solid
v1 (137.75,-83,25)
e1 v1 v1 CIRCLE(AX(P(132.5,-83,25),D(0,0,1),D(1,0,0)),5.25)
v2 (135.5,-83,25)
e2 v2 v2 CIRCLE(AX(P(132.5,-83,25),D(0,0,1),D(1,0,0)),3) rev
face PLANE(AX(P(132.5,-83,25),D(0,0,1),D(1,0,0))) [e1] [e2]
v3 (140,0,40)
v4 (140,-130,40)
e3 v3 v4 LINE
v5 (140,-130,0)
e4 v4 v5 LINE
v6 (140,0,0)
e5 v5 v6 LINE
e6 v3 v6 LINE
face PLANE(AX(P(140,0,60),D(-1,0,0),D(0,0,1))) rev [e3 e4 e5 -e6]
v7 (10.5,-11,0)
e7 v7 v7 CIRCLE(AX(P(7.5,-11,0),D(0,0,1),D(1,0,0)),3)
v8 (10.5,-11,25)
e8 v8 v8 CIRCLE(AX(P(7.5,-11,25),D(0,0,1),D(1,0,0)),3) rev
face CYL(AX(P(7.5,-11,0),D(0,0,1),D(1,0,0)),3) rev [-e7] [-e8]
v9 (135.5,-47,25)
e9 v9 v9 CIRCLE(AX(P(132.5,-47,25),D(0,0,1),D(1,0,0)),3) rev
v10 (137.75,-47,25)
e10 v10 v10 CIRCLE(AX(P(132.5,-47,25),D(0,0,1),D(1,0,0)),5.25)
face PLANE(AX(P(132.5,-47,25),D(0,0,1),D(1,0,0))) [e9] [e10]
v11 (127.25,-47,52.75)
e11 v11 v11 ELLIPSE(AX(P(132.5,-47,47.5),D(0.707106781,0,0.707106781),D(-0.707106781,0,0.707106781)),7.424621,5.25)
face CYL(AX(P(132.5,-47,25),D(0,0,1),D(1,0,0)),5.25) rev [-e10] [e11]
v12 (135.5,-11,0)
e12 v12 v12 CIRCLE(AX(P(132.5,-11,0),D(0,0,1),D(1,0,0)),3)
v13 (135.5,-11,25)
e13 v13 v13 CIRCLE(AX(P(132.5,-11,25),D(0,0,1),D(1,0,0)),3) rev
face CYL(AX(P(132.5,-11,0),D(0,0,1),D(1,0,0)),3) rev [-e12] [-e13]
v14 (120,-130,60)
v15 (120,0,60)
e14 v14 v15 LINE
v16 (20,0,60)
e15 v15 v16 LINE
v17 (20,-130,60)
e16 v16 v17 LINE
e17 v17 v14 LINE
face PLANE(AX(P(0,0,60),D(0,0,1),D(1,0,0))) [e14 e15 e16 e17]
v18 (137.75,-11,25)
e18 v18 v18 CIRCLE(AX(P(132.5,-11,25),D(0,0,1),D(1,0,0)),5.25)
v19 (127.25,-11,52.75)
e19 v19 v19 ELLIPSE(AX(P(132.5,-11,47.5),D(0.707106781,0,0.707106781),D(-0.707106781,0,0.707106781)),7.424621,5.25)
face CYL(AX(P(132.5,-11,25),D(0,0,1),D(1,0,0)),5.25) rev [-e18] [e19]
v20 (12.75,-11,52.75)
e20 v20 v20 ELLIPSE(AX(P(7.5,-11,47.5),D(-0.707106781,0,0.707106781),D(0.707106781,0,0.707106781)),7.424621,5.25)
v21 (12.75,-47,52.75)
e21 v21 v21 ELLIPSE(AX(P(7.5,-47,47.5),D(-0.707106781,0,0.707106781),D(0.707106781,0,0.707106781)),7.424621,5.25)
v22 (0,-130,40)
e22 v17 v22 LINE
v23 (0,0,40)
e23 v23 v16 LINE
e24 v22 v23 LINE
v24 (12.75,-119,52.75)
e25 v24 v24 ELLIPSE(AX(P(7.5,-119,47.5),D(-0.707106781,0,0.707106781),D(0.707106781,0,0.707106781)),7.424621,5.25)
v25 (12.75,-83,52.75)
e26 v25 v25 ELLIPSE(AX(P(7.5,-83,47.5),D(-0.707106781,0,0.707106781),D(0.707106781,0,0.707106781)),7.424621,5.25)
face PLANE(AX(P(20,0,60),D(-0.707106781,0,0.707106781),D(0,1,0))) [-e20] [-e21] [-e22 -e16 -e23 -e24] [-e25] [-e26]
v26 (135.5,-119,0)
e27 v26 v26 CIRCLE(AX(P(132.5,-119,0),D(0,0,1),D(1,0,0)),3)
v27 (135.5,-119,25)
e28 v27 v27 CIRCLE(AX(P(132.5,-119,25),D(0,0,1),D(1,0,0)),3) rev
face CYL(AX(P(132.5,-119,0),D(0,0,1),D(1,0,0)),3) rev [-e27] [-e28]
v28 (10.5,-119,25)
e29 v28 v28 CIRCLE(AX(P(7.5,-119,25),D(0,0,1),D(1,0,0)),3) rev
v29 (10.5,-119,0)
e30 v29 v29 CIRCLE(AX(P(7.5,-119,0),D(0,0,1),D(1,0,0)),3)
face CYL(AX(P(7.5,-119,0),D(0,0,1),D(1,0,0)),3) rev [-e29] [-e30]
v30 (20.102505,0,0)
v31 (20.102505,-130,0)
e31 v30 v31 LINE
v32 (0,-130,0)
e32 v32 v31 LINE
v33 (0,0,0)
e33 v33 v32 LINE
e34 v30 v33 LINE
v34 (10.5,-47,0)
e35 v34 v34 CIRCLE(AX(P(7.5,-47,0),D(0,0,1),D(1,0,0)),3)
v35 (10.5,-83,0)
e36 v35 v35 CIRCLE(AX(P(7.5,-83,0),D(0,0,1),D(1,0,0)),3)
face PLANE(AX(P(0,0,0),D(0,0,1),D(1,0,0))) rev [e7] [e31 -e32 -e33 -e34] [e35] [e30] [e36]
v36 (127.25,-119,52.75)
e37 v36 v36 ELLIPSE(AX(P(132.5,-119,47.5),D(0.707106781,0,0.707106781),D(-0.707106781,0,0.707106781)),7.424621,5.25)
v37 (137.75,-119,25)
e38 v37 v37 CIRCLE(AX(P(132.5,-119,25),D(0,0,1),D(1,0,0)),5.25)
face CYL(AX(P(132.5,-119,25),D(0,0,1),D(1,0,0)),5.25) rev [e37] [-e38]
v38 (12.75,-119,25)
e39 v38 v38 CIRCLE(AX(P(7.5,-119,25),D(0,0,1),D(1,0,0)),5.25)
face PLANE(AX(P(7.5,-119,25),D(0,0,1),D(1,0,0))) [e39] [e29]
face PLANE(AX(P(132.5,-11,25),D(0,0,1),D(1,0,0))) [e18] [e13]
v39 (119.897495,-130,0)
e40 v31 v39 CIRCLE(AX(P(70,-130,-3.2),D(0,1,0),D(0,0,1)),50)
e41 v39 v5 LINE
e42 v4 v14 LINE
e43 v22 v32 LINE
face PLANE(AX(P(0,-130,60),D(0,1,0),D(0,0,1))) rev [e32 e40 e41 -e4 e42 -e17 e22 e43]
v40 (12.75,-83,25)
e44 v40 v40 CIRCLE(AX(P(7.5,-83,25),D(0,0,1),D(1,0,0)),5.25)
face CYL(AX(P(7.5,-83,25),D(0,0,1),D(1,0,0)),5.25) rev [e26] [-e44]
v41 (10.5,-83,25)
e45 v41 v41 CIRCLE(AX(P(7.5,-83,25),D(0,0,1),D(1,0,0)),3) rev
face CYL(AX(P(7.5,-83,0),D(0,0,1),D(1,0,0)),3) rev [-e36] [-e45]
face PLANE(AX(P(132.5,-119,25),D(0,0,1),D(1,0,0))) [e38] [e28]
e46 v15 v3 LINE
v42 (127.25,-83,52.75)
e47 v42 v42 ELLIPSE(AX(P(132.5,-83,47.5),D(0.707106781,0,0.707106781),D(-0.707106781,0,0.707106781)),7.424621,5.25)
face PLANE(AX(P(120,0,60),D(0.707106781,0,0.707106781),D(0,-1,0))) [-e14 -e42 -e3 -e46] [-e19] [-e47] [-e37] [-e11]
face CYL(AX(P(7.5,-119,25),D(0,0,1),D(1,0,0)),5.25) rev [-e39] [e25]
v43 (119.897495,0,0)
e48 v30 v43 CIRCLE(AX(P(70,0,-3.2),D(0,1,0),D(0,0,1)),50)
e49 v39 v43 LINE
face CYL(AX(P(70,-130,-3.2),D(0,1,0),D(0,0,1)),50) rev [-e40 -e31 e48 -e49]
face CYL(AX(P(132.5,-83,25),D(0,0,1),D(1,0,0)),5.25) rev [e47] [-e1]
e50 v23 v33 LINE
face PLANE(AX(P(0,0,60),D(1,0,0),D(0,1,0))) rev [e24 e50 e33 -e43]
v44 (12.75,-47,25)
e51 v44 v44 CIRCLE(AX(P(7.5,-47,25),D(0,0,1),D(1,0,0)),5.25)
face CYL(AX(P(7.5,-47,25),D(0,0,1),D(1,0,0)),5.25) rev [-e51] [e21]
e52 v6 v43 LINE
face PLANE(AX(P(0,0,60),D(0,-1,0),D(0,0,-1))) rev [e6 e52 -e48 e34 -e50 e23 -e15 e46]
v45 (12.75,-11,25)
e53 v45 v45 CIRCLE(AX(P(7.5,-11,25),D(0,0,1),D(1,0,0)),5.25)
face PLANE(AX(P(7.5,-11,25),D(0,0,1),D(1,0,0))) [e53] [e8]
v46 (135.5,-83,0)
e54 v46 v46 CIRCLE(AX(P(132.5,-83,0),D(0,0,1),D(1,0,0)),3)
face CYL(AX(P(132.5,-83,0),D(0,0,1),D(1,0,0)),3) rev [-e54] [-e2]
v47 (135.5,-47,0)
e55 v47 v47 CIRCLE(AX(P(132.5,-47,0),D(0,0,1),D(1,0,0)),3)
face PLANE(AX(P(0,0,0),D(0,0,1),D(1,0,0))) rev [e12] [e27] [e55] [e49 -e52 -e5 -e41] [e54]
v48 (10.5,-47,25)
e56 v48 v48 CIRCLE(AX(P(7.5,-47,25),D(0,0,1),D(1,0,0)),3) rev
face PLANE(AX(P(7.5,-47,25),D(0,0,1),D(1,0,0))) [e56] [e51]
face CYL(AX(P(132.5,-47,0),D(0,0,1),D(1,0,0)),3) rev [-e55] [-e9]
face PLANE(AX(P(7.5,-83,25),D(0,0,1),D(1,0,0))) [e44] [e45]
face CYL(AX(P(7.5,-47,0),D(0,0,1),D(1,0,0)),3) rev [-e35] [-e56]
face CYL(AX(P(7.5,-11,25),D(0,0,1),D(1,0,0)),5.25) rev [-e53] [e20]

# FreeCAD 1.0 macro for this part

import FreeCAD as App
import Part
import Sketcher

V = App.Vector
Q = App.Units.Quantity


def edges_at(feature, points):
    """Names of the edges that pass closest to the given points."""
    edges = feature.Shape.Edges
    near = lambda p: min(range(len(edges)), key=lambda i: edges[i].distToShape(Part.Vertex(*p))[0])
    return sorted({f"Edge{near(p) + 1}" for p in points})


def add_polygon(sketch, points):
    """Adds a closed chain of lines whose ends are joined by coincident constraints."""
    first, n = sketch.GeometryCount, len(points)
    for a, b in zip(points, points[1:] + points[:1]):
        sketch.addGeometry(Part.LineSegment(App.Vector(*a, 0), App.Vector(*b, 0)), False)
    for i in range(n):
        sketch.addConstraint(Sketcher.Constraint("Coincident", first + i, 2, first + (i + 1) % n, 1))

doc = App.newDocument("Part")
body = doc.addObject("PartDesign::Body", "Body")

# Sketch on XY plane
sketch1 = doc.addObject("Sketcher::SketchObject", "Sketch")
body.addObject(sketch1)
sketch1.AttachmentSupport = (doc.XY_Plane, [""])
sketch1.MapMode = "FlatFace"
add_polygon(sketch1, [(0, 0), (0, -130), (140, -130), (140, 0)])  # lines 0-3
sketch1.addConstraint([
    Sketcher.Constraint("Vertical", 0),
    Sketcher.Constraint("Horizontal", 1),
    Sketcher.Constraint("Vertical", 2),
    Sketcher.Constraint("Horizontal", 3),
    Sketcher.Constraint("Coincident", 3, 2, -1, 1),
    Sketcher.Constraint("DistanceX", 1, 1, 1, 2, Q("140 mm")),
    Sketcher.Constraint("DistanceY", 0, 2, 0, 1, Q("130 mm")),
])
pad1 = doc.addObject("PartDesign::Pad", "Pad")
body.addObject(pad1)
pad1.Profile = sketch1
pad1.Length = 60
doc.recompute()

chamfer = doc.addObject("PartDesign::Chamfer", "Chamfer")
body.addObject(chamfer)
chamfer.Base = (pad1, edges_at(pad1, [(140, -65, 60), (0, -65, 60)]))
chamfer.Size = 20

# Sketch on XZ plane
sketch2 = doc.addObject("Sketcher::SketchObject", "Sketch001")
body.addObject(sketch2)
sketch2.AttachmentSupport = (doc.XZ_Plane, [""])
sketch2.MapMode = "FlatFace"
sketch2.addGeometry(Part.Circle(V(70, -3, 0), V(0, 0, 1), 50), False)
sketch2.addConstraint([
    Sketcher.Constraint("Diameter", 0, Q("100 mm")),
    Sketcher.Constraint("DistanceX", -1, 1, 0, 3, Q("70 mm")),
    Sketcher.Constraint("DistanceY", 0, 3, -1, 1, Q("3.2 mm")),
])
pocket1 = doc.addObject("PartDesign::Pocket", "Pocket")
body.addObject(pocket1)
pocket1.Profile = sketch2
pocket1.Type = "ThroughAll"
pocket1.Reversed = True

# Sketch on XY plane
sketch3 = doc.addObject("Sketcher::SketchObject", "Sketch002")
body.addObject(sketch3)
sketch3.AttachmentSupport = (doc.XY_Plane, [""])
sketch3.MapMode = "FlatFace"
sketch3.AttachmentOffset = App.Placement(V(0, 0, 60), App.Rotation())
sketch3.addGeometry([
    Part.Circle(V(7.5, -11, 0), V(0, 0, 1), 3),  # 0
    Part.Circle(V(132.5, -11, 0), V(0, 0, 1), 3),  # 1
    Part.Circle(V(132.5, -47, 0), V(0, 0, 1), 3),  # 2
    Part.Circle(V(132.5, -83, 0), V(0, 0, 1), 3),  # 3
    Part.Circle(V(132.5, -119, 0), V(0, 0, 1), 3),  # 4
    Part.Circle(V(7.5, -47, 0), V(0, 0, 1), 3),  # 5
    Part.Circle(V(7.5, -83, 0), V(0, 0, 1), 3),  # 6
    Part.Circle(V(7.5, -119, 0), V(0, 0, 1), 3),  # 7
], False)
sketch3.addConstraint([
    Sketcher.Constraint("Equal", 0, 1),
    Sketcher.Constraint("Equal", 1, 2),
    Sketcher.Constraint("Equal", 2, 3),
    Sketcher.Constraint("Equal", 3, 4),
    Sketcher.Constraint("Equal", 4, 5),
    Sketcher.Constraint("Equal", 5, 6),
    Sketcher.Constraint("Equal", 6, 7),
    Sketcher.Constraint("Horizontal", 0, 3, 1, 3),
    Sketcher.Constraint("Horizontal", 2, 3, 5, 3),
    Sketcher.Constraint("Horizontal", 3, 3, 6, 3),
    Sketcher.Constraint("Horizontal", 4, 3, 7, 3),
    Sketcher.Constraint("Vertical", 1, 3, 2, 3),
    Sketcher.Constraint("Vertical", 2, 3, 3, 3),
    Sketcher.Constraint("Vertical", 3, 3, 4, 3),
    Sketcher.Constraint("Vertical", 0, 3, 5, 3),
    Sketcher.Constraint("Vertical", 5, 3, 6, 3),
    Sketcher.Constraint("Vertical", 6, 3, 7, 3),
    Sketcher.Constraint("Diameter", 0, Q("6 mm")),
    Sketcher.Constraint("DistanceY", 0, 3, -1, 1, Q("11 mm")),
    Sketcher.Constraint("DistanceY", 2, 3, -1, 1, Q("47 mm")),
    Sketcher.Constraint("DistanceY", 3, 3, -1, 1, Q("83 mm")),
    Sketcher.Constraint("DistanceY", 4, 3, -1, 1, Q("119 mm")),
    Sketcher.Constraint("DistanceX", 0, 3, 1, 3, Q("125 mm")),
    Sketcher.Constraint("DistanceX", -1, 1, 0, 3, Q("7.5 mm")),
])
pocket2 = doc.addObject("PartDesign::Pocket", "Pocket001")
body.addObject(pocket2)
pocket2.Profile = sketch3
pocket2.Type = "ThroughAll"

# Sketch on XY plane
sketch4 = doc.addObject("Sketcher::SketchObject", "Sketch003")
body.addObject(sketch4)
sketch4.AttachmentSupport = (doc.XY_Plane, [""])
sketch4.MapMode = "FlatFace"
sketch4.AttachmentOffset = App.Placement(V(0, 0, 60), App.Rotation())
sketch4.addGeometry([
    Part.Circle(V(8, -11, 0), V(0, 0, 1), 5),  # 0
    Part.Circle(V(132, -11, 0), V(0, 0, 1), 5),  # 1
    Part.Circle(V(132, -47, 0), V(0, 0, 1), 5),  # 2
    Part.Circle(V(132, -83, 0), V(0, 0, 1), 5),  # 3
    Part.Circle(V(132, -119, 0), V(0, 0, 1), 5),  # 4
    Part.Circle(V(8, -47, 0), V(0, 0, 1), 5),  # 5
    Part.Circle(V(8, -83, 0), V(0, 0, 1), 5),  # 6
    Part.Circle(V(8, -119, 0), V(0, 0, 1), 5),  # 7
], False)
sketch4.addConstraint([
    Sketcher.Constraint("Equal", 0, 1),
    Sketcher.Constraint("Equal", 1, 2),
    Sketcher.Constraint("Equal", 2, 3),
    Sketcher.Constraint("Equal", 3, 4),
    Sketcher.Constraint("Equal", 4, 5),
    Sketcher.Constraint("Equal", 5, 6),
    Sketcher.Constraint("Equal", 6, 7),
    Sketcher.Constraint("Horizontal", 0, 3, 1, 3),
    Sketcher.Constraint("Horizontal", 2, 3, 5, 3),
    Sketcher.Constraint("Horizontal", 3, 3, 6, 3),
    Sketcher.Constraint("Horizontal", 4, 3, 7, 3),
    Sketcher.Constraint("Vertical", 1, 3, 2, 3),
    Sketcher.Constraint("Vertical", 2, 3, 3, 3),
    Sketcher.Constraint("Vertical", 3, 3, 4, 3),
    Sketcher.Constraint("Vertical", 0, 3, 5, 3),
    Sketcher.Constraint("Vertical", 5, 3, 6, 3),
    Sketcher.Constraint("Vertical", 6, 3, 7, 3),
    Sketcher.Constraint("Diameter", 0, Q("10.5 mm")),
    Sketcher.Constraint("DistanceY", 0, 3, -1, 1, Q("11 mm")),
    Sketcher.Constraint("DistanceY", 2, 3, -1, 1, Q("47 mm")),
    Sketcher.Constraint("DistanceY", 3, 3, -1, 1, Q("83 mm")),
    Sketcher.Constraint("DistanceY", 4, 3, -1, 1, Q("119 mm")),
    Sketcher.Constraint("DistanceX", 0, 3, 1, 3, Q("125 mm")),
    Sketcher.Constraint("DistanceX", -1, 1, 0, 3, Q("7.5 mm")),
])
pocket3 = doc.addObject("PartDesign::Pocket", "Pocket002")
body.addObject(pocket3)
pocket3.Profile = sketch4
pocket3.Length = 35

doc.recompute()
